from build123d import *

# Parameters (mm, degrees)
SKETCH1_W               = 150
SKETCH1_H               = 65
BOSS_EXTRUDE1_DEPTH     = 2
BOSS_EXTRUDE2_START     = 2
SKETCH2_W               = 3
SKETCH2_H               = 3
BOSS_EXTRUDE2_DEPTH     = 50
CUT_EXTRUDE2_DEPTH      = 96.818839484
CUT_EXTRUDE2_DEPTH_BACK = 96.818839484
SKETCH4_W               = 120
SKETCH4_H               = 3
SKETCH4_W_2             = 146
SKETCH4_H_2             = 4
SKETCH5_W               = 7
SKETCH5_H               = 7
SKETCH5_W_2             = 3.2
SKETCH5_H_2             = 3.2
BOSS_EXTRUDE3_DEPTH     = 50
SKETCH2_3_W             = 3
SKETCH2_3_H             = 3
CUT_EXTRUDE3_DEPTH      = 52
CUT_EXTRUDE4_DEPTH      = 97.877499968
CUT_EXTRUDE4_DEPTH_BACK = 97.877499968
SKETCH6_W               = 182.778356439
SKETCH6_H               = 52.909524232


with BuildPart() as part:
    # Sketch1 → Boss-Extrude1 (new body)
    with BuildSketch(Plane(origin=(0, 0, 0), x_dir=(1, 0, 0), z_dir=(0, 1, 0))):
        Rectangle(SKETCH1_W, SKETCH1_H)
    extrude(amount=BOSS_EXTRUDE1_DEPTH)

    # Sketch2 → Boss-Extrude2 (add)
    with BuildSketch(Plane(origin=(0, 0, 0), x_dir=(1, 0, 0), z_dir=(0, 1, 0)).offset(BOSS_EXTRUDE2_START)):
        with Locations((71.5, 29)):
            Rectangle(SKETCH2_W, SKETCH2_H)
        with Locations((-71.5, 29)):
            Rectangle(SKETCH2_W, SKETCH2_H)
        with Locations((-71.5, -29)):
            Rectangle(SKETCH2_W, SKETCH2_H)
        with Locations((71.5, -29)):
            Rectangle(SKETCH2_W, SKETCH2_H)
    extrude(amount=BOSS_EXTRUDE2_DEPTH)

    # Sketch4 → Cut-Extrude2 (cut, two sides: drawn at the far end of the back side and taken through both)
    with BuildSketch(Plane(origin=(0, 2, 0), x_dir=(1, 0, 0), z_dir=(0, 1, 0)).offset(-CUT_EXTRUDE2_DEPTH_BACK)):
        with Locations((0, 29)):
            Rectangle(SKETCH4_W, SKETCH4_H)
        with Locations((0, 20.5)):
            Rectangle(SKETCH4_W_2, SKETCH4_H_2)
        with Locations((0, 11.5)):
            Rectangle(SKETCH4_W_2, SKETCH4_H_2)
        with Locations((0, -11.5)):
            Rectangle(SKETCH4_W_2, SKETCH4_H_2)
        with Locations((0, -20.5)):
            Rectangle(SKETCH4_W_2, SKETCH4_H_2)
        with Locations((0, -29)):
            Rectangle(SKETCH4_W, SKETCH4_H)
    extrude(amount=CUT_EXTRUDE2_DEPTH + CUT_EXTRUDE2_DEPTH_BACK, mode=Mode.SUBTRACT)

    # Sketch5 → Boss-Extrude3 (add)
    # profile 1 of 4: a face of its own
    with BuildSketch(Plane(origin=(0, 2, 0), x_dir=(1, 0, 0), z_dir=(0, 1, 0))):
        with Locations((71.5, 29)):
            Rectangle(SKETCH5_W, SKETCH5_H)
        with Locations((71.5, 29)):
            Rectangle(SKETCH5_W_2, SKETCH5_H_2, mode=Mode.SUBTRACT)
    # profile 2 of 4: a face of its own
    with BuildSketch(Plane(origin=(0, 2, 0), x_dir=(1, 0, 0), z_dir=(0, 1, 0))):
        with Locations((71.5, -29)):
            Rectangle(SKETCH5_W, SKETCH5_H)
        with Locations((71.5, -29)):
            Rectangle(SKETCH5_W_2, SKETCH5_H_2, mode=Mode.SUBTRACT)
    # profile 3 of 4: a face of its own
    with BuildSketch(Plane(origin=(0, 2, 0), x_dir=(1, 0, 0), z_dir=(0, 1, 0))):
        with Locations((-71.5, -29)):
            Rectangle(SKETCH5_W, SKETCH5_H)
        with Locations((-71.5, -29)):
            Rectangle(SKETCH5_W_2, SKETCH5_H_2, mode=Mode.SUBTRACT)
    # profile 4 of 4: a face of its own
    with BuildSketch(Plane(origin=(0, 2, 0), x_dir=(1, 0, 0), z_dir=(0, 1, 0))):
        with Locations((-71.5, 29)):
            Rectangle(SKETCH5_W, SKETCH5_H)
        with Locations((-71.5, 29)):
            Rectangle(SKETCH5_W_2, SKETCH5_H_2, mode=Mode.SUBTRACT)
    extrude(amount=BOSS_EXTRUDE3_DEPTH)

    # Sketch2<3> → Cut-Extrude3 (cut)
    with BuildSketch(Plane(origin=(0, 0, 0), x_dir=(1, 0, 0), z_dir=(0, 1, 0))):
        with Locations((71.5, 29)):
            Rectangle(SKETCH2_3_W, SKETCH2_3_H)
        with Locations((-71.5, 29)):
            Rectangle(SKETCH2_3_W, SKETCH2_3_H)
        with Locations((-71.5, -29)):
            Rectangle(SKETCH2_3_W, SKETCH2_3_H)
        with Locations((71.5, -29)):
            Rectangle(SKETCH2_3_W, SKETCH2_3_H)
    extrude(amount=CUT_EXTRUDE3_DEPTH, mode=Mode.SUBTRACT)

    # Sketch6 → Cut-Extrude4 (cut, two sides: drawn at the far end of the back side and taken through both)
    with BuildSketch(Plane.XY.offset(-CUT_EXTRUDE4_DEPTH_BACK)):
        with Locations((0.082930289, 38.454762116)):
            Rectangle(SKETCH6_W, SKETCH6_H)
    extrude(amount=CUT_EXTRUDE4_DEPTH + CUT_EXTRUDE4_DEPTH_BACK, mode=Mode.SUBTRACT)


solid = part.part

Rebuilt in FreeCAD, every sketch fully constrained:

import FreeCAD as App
import Part
import Sketcher
from FreeCAD import Vector

doc = App.newDocument("Part")
body = doc.addObject("PartDesign::Body", "Body")

# Sketch on XZ plane
sketch1 = doc.addObject("Sketcher::SketchObject", "Sketch")
body.addObject(sketch1)
sketch1.AttachmentSupport = (doc.XZ_Plane, [""])
sketch1.MapMode = "FlatFace"
sketch1.addGeometry(Part.LineSegment(Vector(-75, -32, 0), Vector(-75, 32, 0)), False)
sketch1.addGeometry(Part.LineSegment(Vector(-75, 32, 0), Vector(75, 32, 0)), False)
sketch1.addGeometry(Part.LineSegment(Vector(75, 32, 0), Vector(75, -32, 0)), False)
sketch1.addGeometry(Part.LineSegment(Vector(75, -32, 0), Vector(-75, -32, 0)), False)
sketch1.addConstraint(Sketcher.Constraint("Coincident", 0, 2, 1, 1))
sketch1.addConstraint(Sketcher.Constraint("Coincident", 1, 2, 2, 1))
sketch1.addConstraint(Sketcher.Constraint("Coincident", 2, 2, 3, 1))
sketch1.addConstraint(Sketcher.Constraint("Coincident", 3, 2, 0, 1))
sketch1.addConstraint(Sketcher.Constraint("Vertical", 0))
sketch1.addConstraint(Sketcher.Constraint("Horizontal", 1))
sketch1.addConstraint(Sketcher.Constraint("Vertical", 2))
sketch1.addConstraint(Sketcher.Constraint("Horizontal", 3))
sketch1.addConstraint(Sketcher.Constraint("Symmetric", 0, 2, 2, 2, -1, 1))
sketch1.addConstraint(Sketcher.Constraint("DistanceX", 1, 1, 1, 2, 150.0))
sketch1.addConstraint(Sketcher.Constraint("DistanceY", 0, 1, 0, 2, 65.0))
pad1 = doc.addObject("PartDesign::Pad", "Pad")
body.addObject(pad1)
pad1.Profile = sketch1
pad1.Length = 2
pad1.Reversed = True

# Sketch on XZ plane
sketch2 = doc.addObject("Sketcher::SketchObject", "Sketch001")
body.addObject(sketch2)
sketch2.AttachmentSupport = (doc.XZ_Plane, [""])
sketch2.MapMode = "FlatFace"
sketch2.AttachmentOffset = App.Placement(Vector(0, 0, -2), App.Rotation())
sketch2.addGeometry(Part.LineSegment(Vector(70, -30.5, 0), Vector(70, -27.5, 0)), False)
sketch2.addGeometry(Part.LineSegment(Vector(70, -27.5, 0), Vector(73, -27.5, 0)), False)
sketch2.addGeometry(Part.LineSegment(Vector(73, -27.5, 0), Vector(73, -30.5, 0)), False)
sketch2.addGeometry(Part.LineSegment(Vector(73, -30.5, 0), Vector(70, -30.5, 0)), False)
sketch2.addGeometry(Part.LineSegment(Vector(-73, -30.5, 0), Vector(-73, -27.5, 0)), False)
sketch2.addGeometry(Part.LineSegment(Vector(-73, -27.5, 0), Vector(-70, -27.5, 0)), False)
sketch2.addGeometry(Part.LineSegment(Vector(-70, -27.5, 0), Vector(-70, -30.5, 0)), False)
sketch2.addGeometry(Part.LineSegment(Vector(-70, -30.5, 0), Vector(-73, -30.5, 0)), False)
sketch2.addGeometry(Part.LineSegment(Vector(-73, 27.5, 0), Vector(-73, 30.5, 0)), False)
sketch2.addGeometry(Part.LineSegment(Vector(-73, 30.5, 0), Vector(-70, 30.5, 0)), False)
sketch2.addGeometry(Part.LineSegment(Vector(-70, 30.5, 0), Vector(-70, 27.5, 0)), False)
sketch2.addGeometry(Part.LineSegment(Vector(-70, 27.5, 0), Vector(-73, 27.5, 0)), False)
sketch2.addGeometry(Part.LineSegment(Vector(70, 27.5, 0), Vector(70, 30.5, 0)), False)
sketch2.addGeometry(Part.LineSegment(Vector(70, 30.5, 0), Vector(73, 30.5, 0)), False)
sketch2.addGeometry(Part.LineSegment(Vector(73, 30.5, 0), Vector(73, 27.5, 0)), False)
sketch2.addGeometry(Part.LineSegment(Vector(73, 27.5, 0), Vector(70, 27.5, 0)), False)
sketch2.addConstraint(Sketcher.Constraint("Coincident", 0, 2, 1, 1))
sketch2.addConstraint(Sketcher.Constraint("Coincident", 1, 2, 2, 1))
sketch2.addConstraint(Sketcher.Constraint("Coincident", 2, 2, 3, 1))
sketch2.addConstraint(Sketcher.Constraint("Coincident", 3, 2, 0, 1))
sketch2.addConstraint(Sketcher.Constraint("Coincident", 4, 2, 5, 1))
sketch2.addConstraint(Sketcher.Constraint("Coincident", 5, 2, 6, 1))
sketch2.addConstraint(Sketcher.Constraint("Coincident", 6, 2, 7, 1))
sketch2.addConstraint(Sketcher.Constraint("Coincident", 7, 2, 4, 1))
sketch2.addConstraint(Sketcher.Constraint("Coincident", 8, 2, 9, 1))
sketch2.addConstraint(Sketcher.Constraint("Coincident", 9, 2, 10, 1))
sketch2.addConstraint(Sketcher.Constraint("Coincident", 10, 2, 11, 1))
sketch2.addConstraint(Sketcher.Constraint("Coincident", 11, 2, 8, 1))
sketch2.addConstraint(Sketcher.Constraint("Coincident", 12, 2, 13, 1))
sketch2.addConstraint(Sketcher.Constraint("Coincident", 13, 2, 14, 1))
sketch2.addConstraint(Sketcher.Constraint("Coincident", 14, 2, 15, 1))
sketch2.addConstraint(Sketcher.Constraint("Coincident", 15, 2, 12, 1))
sketch2.addConstraint(Sketcher.Constraint("Vertical", 0))
sketch2.addConstraint(Sketcher.Constraint("Horizontal", 1))
sketch2.addConstraint(Sketcher.Constraint("Vertical", 2))
sketch2.addConstraint(Sketcher.Constraint("Horizontal", 3))
sketch2.addConstraint(Sketcher.Constraint("Vertical", 4))
sketch2.addConstraint(Sketcher.Constraint("Horizontal", 5))
sketch2.addConstraint(Sketcher.Constraint("Vertical", 6))
sketch2.addConstraint(Sketcher.Constraint("Horizontal", 7))
sketch2.addConstraint(Sketcher.Constraint("Vertical", 8))
sketch2.addConstraint(Sketcher.Constraint("Horizontal", 9))
sketch2.addConstraint(Sketcher.Constraint("Vertical", 10))
sketch2.addConstraint(Sketcher.Constraint("Horizontal", 11))
sketch2.addConstraint(Sketcher.Constraint("Vertical", 12))
sketch2.addConstraint(Sketcher.Constraint("Horizontal", 13))
sketch2.addConstraint(Sketcher.Constraint("Vertical", 14))
sketch2.addConstraint(Sketcher.Constraint("Horizontal", 15))
sketch2.addConstraint(Sketcher.Constraint("Symmetric", 2, 2, 8, 2, -1, 1))
sketch2.addConstraint(Sketcher.Constraint("Symmetric", 0, 2, 10, 2, -1, 1))
sketch2.addConstraint(Sketcher.Constraint("Symmetric", 6, 2, 12, 2, -1, 1))
sketch2.addConstraint(Sketcher.Constraint("Symmetric", 4, 2, 14, 2, -1, 1))
sketch2.addConstraint(Sketcher.Constraint("Symmetric", 1, 2, 4, 2, -2))
sketch2.addConstraint(Sketcher.Constraint("Symmetric", 3, 2, 6, 2, -2))
sketch2.addConstraint(Sketcher.Constraint("Equal", 15, 0))
sketch2.addConstraint(Sketcher.Constraint("DistanceX", 1, 1, 1, 2, 3.0))
sketch2.addConstraint(Sketcher.Constraint("DistanceX", -1, 1, 0, 2, 70.0))
sketch2.addConstraint(Sketcher.Constraint("DistanceY", 4, 2, 8, 2, 58.0))
pad2 = doc.addObject("PartDesign::Pad", "Pad001")
body.addObject(pad2)
pad2.Profile = sketch2
pad2.Length = 50
pad2.Reversed = True

# Sketch on XZ plane
sketch3 = doc.addObject("Sketcher::SketchObject", "Sketch002")
body.addObject(sketch3)
sketch3.AttachmentSupport = (doc.XZ_Plane, [""])
sketch3.MapMode = "FlatFace"
sketch3.AttachmentOffset = App.Placement(Vector(0, 0, -2), App.Rotation())
sketch3.addGeometry(Part.LineSegment(Vector(-60, -30.5, 0), Vector(-60, -27.5, 0)), False)
sketch3.addGeometry(Part.LineSegment(Vector(-60, -27.5, 0), Vector(60, -27.5, 0)), False)
sketch3.addGeometry(Part.LineSegment(Vector(60, -27.5, 0), Vector(60, -30.5, 0)), False)
sketch3.addGeometry(Part.LineSegment(Vector(60, -30.5, 0), Vector(-60, -30.5, 0)), False)
sketch3.addGeometry(Part.LineSegment(Vector(-73, -22.5, 0), Vector(-73, -18.5, 0)), False)
sketch3.addGeometry(Part.LineSegment(Vector(-73, -18.5, 0), Vector(73, -18.5, 0)), False)
sketch3.addGeometry(Part.LineSegment(Vector(73, -18.5, 0), Vector(73, -22.5, 0)), False)
sketch3.addGeometry(Part.LineSegment(Vector(73, -22.5, 0), Vector(-73, -22.5, 0)), False)
sketch3.addGeometry(Part.LineSegment(Vector(-73, -13.5, 0), Vector(-73, -9.5, 0)), False)
sketch3.addGeometry(Part.LineSegment(Vector(-73, -9.5, 0), Vector(73, -9.5, 0)), False)
sketch3.addGeometry(Part.LineSegment(Vector(73, -9.5, 0), Vector(73, -13.5, 0)), False)
sketch3.addGeometry(Part.LineSegment(Vector(73, -13.5, 0), Vector(-73, -13.5, 0)), False)
sketch3.addGeometry(Part.LineSegment(Vector(-73, 9.5, 0), Vector(-73, 13.5, 0)), False)
sketch3.addGeometry(Part.LineSegment(Vector(-73, 13.5, 0), Vector(73, 13.5, 0)), False)
sketch3.addGeometry(Part.LineSegment(Vector(73, 13.5, 0), Vector(73, 9.5, 0)), False)
sketch3.addGeometry(Part.LineSegment(Vector(73, 9.5, 0), Vector(-73, 9.5, 0)), False)
sketch3.addGeometry(Part.LineSegment(Vector(-73, 18.5, 0), Vector(-73, 22.5, 0)), False)
sketch3.addGeometry(Part.LineSegment(Vector(-73, 22.5, 0), Vector(73, 22.5, 0)), False)
sketch3.addGeometry(Part.LineSegment(Vector(73, 22.5, 0), Vector(73, 18.5, 0)), False)
sketch3.addGeometry(Part.LineSegment(Vector(73, 18.5, 0), Vector(-73, 18.5, 0)), False)
sketch3.addGeometry(Part.LineSegment(Vector(-60, 27.5, 0), Vector(-60, 30.5, 0)), False)
sketch3.addGeometry(Part.LineSegment(Vector(-60, 30.5, 0), Vector(60, 30.5, 0)), False)
sketch3.addGeometry(Part.LineSegment(Vector(60, 30.5, 0), Vector(60, 27.5, 0)), False)
sketch3.addGeometry(Part.LineSegment(Vector(60, 27.5, 0), Vector(-60, 27.5, 0)), False)
sketch3.addConstraint(Sketcher.Constraint("Coincident", 0, 2, 1, 1))
sketch3.addConstraint(Sketcher.Constraint("Coincident", 1, 2, 2, 1))
sketch3.addConstraint(Sketcher.Constraint("Coincident", 2, 2, 3, 1))
sketch3.addConstraint(Sketcher.Constraint("Coincident", 3, 2, 0, 1))
sketch3.addConstraint(Sketcher.Constraint("Coincident", 4, 2, 5, 1))
sketch3.addConstraint(Sketcher.Constraint("Coincident", 5, 2, 6, 1))
sketch3.addConstraint(Sketcher.Constraint("Coincident", 6, 2, 7, 1))
sketch3.addConstraint(Sketcher.Constraint("Coincident", 7, 2, 4, 1))
sketch3.addConstraint(Sketcher.Constraint("Coincident", 8, 2, 9, 1))
sketch3.addConstraint(Sketcher.Constraint("Coincident", 9, 2, 10, 1))
sketch3.addConstraint(Sketcher.Constraint("Coincident", 10, 2, 11, 1))
sketch3.addConstraint(Sketcher.Constraint("Coincident", 11, 2, 8, 1))
sketch3.addConstraint(Sketcher.Constraint("Coincident", 12, 2, 13, 1))
sketch3.addConstraint(Sketcher.Constraint("Coincident", 13, 2, 14, 1))
sketch3.addConstraint(Sketcher.Constraint("Coincident", 14, 2, 15, 1))
sketch3.addConstraint(Sketcher.Constraint("Coincident", 15, 2, 12, 1))
sketch3.addConstraint(Sketcher.Constraint("Coincident", 16, 2, 17, 1))
sketch3.addConstraint(Sketcher.Constraint("Coincident", 17, 2, 18, 1))
sketch3.addConstraint(Sketcher.Constraint("Coincident", 18, 2, 19, 1))
sketch3.addConstraint(Sketcher.Constraint("Coincident", 19, 2, 16, 1))
sketch3.addConstraint(Sketcher.Constraint("Coincident", 20, 2, 21, 1))
sketch3.addConstraint(Sketcher.Constraint("Coincident", 21, 2, 22, 1))
sketch3.addConstraint(Sketcher.Constraint("Coincident", 22, 2, 23, 1))
sketch3.addConstraint(Sketcher.Constraint("Coincident", 23, 2, 20, 1))
sketch3.addConstraint(Sketcher.Constraint("Vertical", 0))
sketch3.addConstraint(Sketcher.Constraint("Horizontal", 1))
sketch3.addConstraint(Sketcher.Constraint("Vertical", 2))
sketch3.addConstraint(Sketcher.Constraint("Horizontal", 3))
sketch3.addConstraint(Sketcher.Constraint("Vertical", 4))
sketch3.addConstraint(Sketcher.Constraint("Horizontal", 5))
sketch3.addConstraint(Sketcher.Constraint("Vertical", 6))
sketch3.addConstraint(Sketcher.Constraint("Horizontal", 7))
sketch3.addConstraint(Sketcher.Constraint("Vertical", 8))
sketch3.addConstraint(Sketcher.Constraint("Horizontal", 9))
sketch3.addConstraint(Sketcher.Constraint("Vertical", 10))
sketch3.addConstraint(Sketcher.Constraint("Horizontal", 11))
sketch3.addConstraint(Sketcher.Constraint("Vertical", 12))
sketch3.addConstraint(Sketcher.Constraint("Horizontal", 13))
sketch3.addConstraint(Sketcher.Constraint("Vertical", 14))
sketch3.addConstraint(Sketcher.Constraint("Horizontal", 15))
sketch3.addConstraint(Sketcher.Constraint("Vertical", 16))
sketch3.addConstraint(Sketcher.Constraint("Horizontal", 17))
sketch3.addConstraint(Sketcher.Constraint("Vertical", 18))
sketch3.addConstraint(Sketcher.Constraint("Horizontal", 19))
sketch3.addConstraint(Sketcher.Constraint("Vertical", 20))
sketch3.addConstraint(Sketcher.Constraint("Horizontal", 21))
sketch3.addConstraint(Sketcher.Constraint("Vertical", 22))
sketch3.addConstraint(Sketcher.Constraint("Horizontal", 23))
sketch3.addConstraint(Sketcher.Constraint("Symmetric", 10, 2, 12, 2, -1, 1))
sketch3.addConstraint(Sketcher.Constraint("Symmetric", 8, 2, 14, 2, -1, 1))
sketch3.addConstraint(Sketcher.Constraint("Symmetric", 6, 2, 16, 2, -1, 1))
sketch3.addConstraint(Sketcher.Constraint("Symmetric", 4, 2, 18, 2, -1, 1))
sketch3.addConstraint(Sketcher.Constraint("Symmetric", 2, 2, 20, 2, -1, 1))
sketch3.addConstraint(Sketcher.Constraint("Symmetric", 0, 2, 22, 2, -1, 1))
sketch3.addConstraint(Sketcher.Constraint("Vertical", 7, 2, 8, 2))
sketch3.addConstraint(Sketcher.Constraint("Vertical", 6, 2, 9, 2))
sketch3.addConstraint(Sketcher.Constraint("Vertical", 11, 2, 12, 2))
sketch3.addConstraint(Sketcher.Constraint("Vertical", 3, 2, 20, 2))
sketch3.addConstraint(Sketcher.Constraint("Equal", 6, 8))
sketch3.addConstraint(Sketcher.Constraint("DistanceX", 1, 1, 1, 2, 120.0))
sketch3.addConstraint(Sketcher.Constraint("DistanceX", 5, 1, 5, 2, 146.0))
sketch3.addConstraint(Sketcher.Constraint("DistanceY", 0, 1, 0, 2, 3.0))
sketch3.addConstraint(Sketcher.Constraint("DistanceY", 4, 1, 4, 2, 4.0))
sketch3.addConstraint(Sketcher.Constraint("DistanceY", 0, 2, 4, 2, 9.0))
sketch3.addConstraint(Sketcher.Constraint("DistanceY", 4, 2, 8, 2, 9.0))
sketch3.addConstraint(Sketcher.Constraint("DistanceY", 8, 2, 12, 2, 23.0))
pocket1 = doc.addObject("PartDesign::Pocket", "Pocket")
body.addObject(pocket1)
pocket1.Profile = sketch3
pocket1.Type = "ThroughAll"
pocket1.Midplane = True

# Sketch on XZ plane
sketch4 = doc.addObject("Sketcher::SketchObject", "Sketch003")
body.addObject(sketch4)
sketch4.AttachmentSupport = (doc.XZ_Plane, [""])
sketch4.MapMode = "FlatFace"
sketch4.AttachmentOffset = App.Placement(Vector(0, 0, -2), App.Rotation())
sketch4.addGeometry(Part.LineSegment(Vector(68, -32.5, 0), Vector(68, -25.5, 0)), False)
sketch4.addGeometry(Part.LineSegment(Vector(68, -25.5, 0), Vector(75, -25.5, 0)), False)
sketch4.addGeometry(Part.LineSegment(Vector(75, -25.5, 0), Vector(75, -32.5, 0)), False)
sketch4.addGeometry(Part.LineSegment(Vector(75, -32.5, 0), Vector(68, -32.5, 0)), False)
sketch4.addGeometry(Part.LineSegment(Vector(73.1, -27.4, 0), Vector(69.9, -27.4, 0)), False)
sketch4.addGeometry(Part.LineSegment(Vector(69.9, -27.4, 0), Vector(69.9, -30.6, 0)), False)
sketch4.addGeometry(Part.LineSegment(Vector(69.9, -30.6, 0), Vector(73.1, -30.6, 0)), False)
sketch4.addGeometry(Part.LineSegment(Vector(73.1, -30.6, 0), Vector(73.1, -27.4, 0)), False)
sketch4.addGeometry(Part.LineSegment(Vector(68, 25.5, 0), Vector(68, 32.5, 0)), False)
sketch4.addGeometry(Part.LineSegment(Vector(68, 32.5, 0), Vector(75, 32.5, 0)), False)
sketch4.addGeometry(Part.LineSegment(Vector(75, 32.5, 0), Vector(75, 25.5, 0)), False)
sketch4.addGeometry(Part.LineSegment(Vector(75, 25.5, 0), Vector(68, 25.5, 0)), False)
sketch4.addGeometry(Part.LineSegment(Vector(73.1, 30.6, 0), Vector(69.9, 30.6, 0)), False)
sketch4.addGeometry(Part.LineSegment(Vector(69.9, 30.6, 0), Vector(69.9, 27.4, 0)), False)
sketch4.addGeometry(Part.LineSegment(Vector(69.9, 27.4, 0), Vector(73.1, 27.4, 0)), False)
sketch4.addGeometry(Part.LineSegment(Vector(73.1, 27.4, 0), Vector(73.1, 30.6, 0)), False)
sketch4.addGeometry(Part.LineSegment(Vector(-75, 25.5, 0), Vector(-75, 32.5, 0)), False)
sketch4.addGeometry(Part.LineSegment(Vector(-75, 32.5, 0), Vector(-68, 32.5, 0)), False)
sketch4.addGeometry(Part.LineSegment(Vector(-68, 32.5, 0), Vector(-68, 25.5, 0)), False)
sketch4.addGeometry(Part.LineSegment(Vector(-68, 25.5, 0), Vector(-75, 25.5, 0)), False)
sketch4.addGeometry(Part.LineSegment(Vector(-69.9, 30.6, 0), Vector(-73.1, 30.6, 0)), False)
sketch4.addGeometry(Part.LineSegment(Vector(-73.1, 30.6, 0), Vector(-73.1, 27.4, 0)), False)
sketch4.addGeometry(Part.LineSegment(Vector(-73.1, 27.4, 0), Vector(-69.9, 27.4, 0)), False)
sketch4.addGeometry(Part.LineSegment(Vector(-69.9, 27.4, 0), Vector(-69.9, 30.6, 0)), False)
sketch4.addGeometry(Part.LineSegment(Vector(-75, -32.5, 0), Vector(-75, -25.5, 0)), False)
sketch4.addGeometry(Part.LineSegment(Vector(-75, -25.5, 0), Vector(-68, -25.5, 0)), False)
sketch4.addGeometry(Part.LineSegment(Vector(-68, -25.5, 0), Vector(-68, -32.5, 0)), False)
sketch4.addGeometry(Part.LineSegment(Vector(-68, -32.5, 0), Vector(-75, -32.5, 0)), False)
sketch4.addGeometry(Part.LineSegment(Vector(-69.9, -27.4, 0), Vector(-73.1, -27.4, 0)), False)
sketch4.addGeometry(Part.LineSegment(Vector(-73.1, -27.4, 0), Vector(-73.1, -30.6, 0)), False)
sketch4.addGeometry(Part.LineSegment(Vector(-73.1, -30.6, 0), Vector(-69.9, -30.6, 0)), False)
sketch4.addGeometry(Part.LineSegment(Vector(-69.9, -30.6, 0), Vector(-69.9, -27.4, 0)), False)
sketch4.addConstraint(Sketcher.Constraint("Coincident", 0, 2, 1, 1))
sketch4.addConstraint(Sketcher.Constraint("Coincident", 1, 2, 2, 1))
sketch4.addConstraint(Sketcher.Constraint("Coincident", 2, 2, 3, 1))
sketch4.addConstraint(Sketcher.Constraint("Coincident", 3, 2, 0, 1))
sketch4.addConstraint(Sketcher.Constraint("Coincident", 4, 2, 5, 1))
sketch4.addConstraint(Sketcher.Constraint("Coincident", 5, 2, 6, 1))
sketch4.addConstraint(Sketcher.Constraint("Coincident", 6, 2, 7, 1))
sketch4.addConstraint(Sketcher.Constraint("Coincident", 7, 2, 4, 1))
sketch4.addConstraint(Sketcher.Constraint("Coincident", 8, 2, 9, 1))
sketch4.addConstraint(Sketcher.Constraint("Coincident", 9, 2, 10, 1))
sketch4.addConstraint(Sketcher.Constraint("Coincident", 10, 2, 11, 1))
sketch4.addConstraint(Sketcher.Constraint("Coincident", 11, 2, 8, 1))
sketch4.addConstraint(Sketcher.Constraint("Coincident", 12, 2, 13, 1))
sketch4.addConstraint(Sketcher.Constraint("Coincident", 13, 2, 14, 1))
sketch4.addConstraint(Sketcher.Constraint("Coincident", 14, 2, 15, 1))
sketch4.addConstraint(Sketcher.Constraint("Coincident", 15, 2, 12, 1))
sketch4.addConstraint(Sketcher.Constraint("Coincident", 16, 2, 17, 1))
sketch4.addConstraint(Sketcher.Constraint("Coincident", 17, 2, 18, 1))
sketch4.addConstraint(Sketcher.Constraint("Coincident", 18, 2, 19, 1))
sketch4.addConstraint(Sketcher.Constraint("Coincident", 19, 2, 16, 1))
sketch4.addConstraint(Sketcher.Constraint("Coincident", 20, 2, 21, 1))
sketch4.addConstraint(Sketcher.Constraint("Coincident", 21, 2, 22, 1))
sketch4.addConstraint(Sketcher.Constraint("Coincident", 22, 2, 23, 1))
sketch4.addConstraint(Sketcher.Constraint("Coincident", 23, 2, 20, 1))
sketch4.addConstraint(Sketcher.Constraint("Coincident", 24, 2, 25, 1))
sketch4.addConstraint(Sketcher.Constraint("Coincident", 25, 2, 26, 1))
sketch4.addConstraint(Sketcher.Constraint("Coincident", 26, 2, 27, 1))
sketch4.addConstraint(Sketcher.Constraint("Coincident", 27, 2, 24, 1))
sketch4.addConstraint(Sketcher.Constraint("Coincident", 28, 2, 29, 1))
sketch4.addConstraint(Sketcher.Constraint("Coincident", 29, 2, 30, 1))
sketch4.addConstraint(Sketcher.Constraint("Coincident", 30, 2, 31, 1))
sketch4.addConstraint(Sketcher.Constraint("Coincident", 31, 2, 28, 1))
sketch4.addConstraint(Sketcher.Constraint("Vertical", 0))
sketch4.addConstraint(Sketcher.Constraint("Horizontal", 1))
sketch4.addConstraint(Sketcher.Constraint("Vertical", 2))
sketch4.addConstraint(Sketcher.Constraint("Horizontal", 3))
sketch4.addConstraint(Sketcher.Constraint("Horizontal", 4))
sketch4.addConstraint(Sketcher.Constraint("Vertical", 5))
sketch4.addConstraint(Sketcher.Constraint("Horizontal", 6))
sketch4.addConstraint(Sketcher.Constraint("Vertical", 7))
sketch4.addConstraint(Sketcher.Constraint("Vertical", 8))
sketch4.addConstraint(Sketcher.Constraint("Horizontal", 9))
sketch4.addConstraint(Sketcher.Constraint("Vertical", 10))
sketch4.addConstraint(Sketcher.Constraint("Horizontal", 11))
sketch4.addConstraint(Sketcher.Constraint("Horizontal", 12))
sketch4.addConstraint(Sketcher.Constraint("Vertical", 13))
sketch4.addConstraint(Sketcher.Constraint("Horizontal", 14))
sketch4.addConstraint(Sketcher.Constraint("Vertical", 15))
sketch4.addConstraint(Sketcher.Constraint("Vertical", 16))
sketch4.addConstraint(Sketcher.Constraint("Horizontal", 17))
sketch4.addConstraint(Sketcher.Constraint("Vertical", 18))
sketch4.addConstraint(Sketcher.Constraint("Horizontal", 19))
sketch4.addConstraint(Sketcher.Constraint("Horizontal", 20))
sketch4.addConstraint(Sketcher.Constraint("Vertical", 21))
sketch4.addConstraint(Sketcher.Constraint("Horizontal", 22))
sketch4.addConstraint(Sketcher.Constraint("Vertical", 23))
sketch4.addConstraint(Sketcher.Constraint("Vertical", 24))
sketch4.addConstraint(Sketcher.Constraint("Horizontal", 25))
sketch4.addConstraint(Sketcher.Constraint("Vertical", 26))
sketch4.addConstraint(Sketcher.Constraint("Horizontal", 27))
sketch4.addConstraint(Sketcher.Constraint("Horizontal", 28))
sketch4.addConstraint(Sketcher.Constraint("Vertical", 29))
sketch4.addConstraint(Sketcher.Constraint("Horizontal", 30))
sketch4.addConstraint(Sketcher.Constraint("Vertical", 31))
sketch4.addConstraint(Sketcher.Constraint("Symmetric", 2, 2, 16, 2, -1, 1))
sketch4.addConstraint(Sketcher.Constraint("Symmetric", 0, 2, 18, 2, -1, 1))
sketch4.addConstraint(Sketcher.Constraint("Symmetric", 6, 2, 20, 2, -1, 1))
sketch4.addConstraint(Sketcher.Constraint("Symmetric", 4, 2, 22, 2, -1, 1))
sketch4.addConstraint(Sketcher.Constraint("Symmetric", 10, 2, 24, 2, -1, 1))
sketch4.addConstraint(Sketcher.Constraint("Symmetric", 8, 2, 26, 2, -1, 1))
sketch4.addConstraint(Sketcher.Constraint("Symmetric", 14, 2, 28, 2, -1, 1))
sketch4.addConstraint(Sketcher.Constraint("Symmetric", 12, 2, 30, 2, -1, 1))
sketch4.addConstraint(Sketcher.Constraint("Symmetric", 9, 2, 16, 2, -2))
sketch4.addConstraint(Sketcher.Constraint("Symmetric", 11, 2, 18, 2, -2))
sketch4.addConstraint(Sketcher.Constraint("Symmetric", 15, 2, 20, 2, -2))
sketch4.addConstraint(Sketcher.Constraint("Symmetric", 13, 2, 22, 2, -2))
sketch4.addConstraint(Sketcher.Constraint("Equal", 27, 0))
sketch4.addConstraint(Sketcher.Constraint("Equal", 30, 5))
sketch4.addConstraint(Sketcher.Constraint("DistanceX", 1, 1, 1, 2, 7.0))
sketch4.addConstraint(Sketcher.Constraint("DistanceX", 4, 2, 4, 1, 3.2))
sketch4.addConstraint(Sketcher.Constraint("DistanceX", -1, 1, 0, 2, 68.0))
sketch4.addConstraint(Sketcher.Constraint("DistanceY", 0, 2, 8, 2, 58.0))
sketch4.addConstraint(Sketcher.Constraint("DistanceX", -1, 1, 4, 2, 69.9))
sketch4.addConstraint(Sketcher.Constraint("DistanceY", 4, 2, -1, 1, 27.4))
pad3 = doc.addObject("PartDesign::Pad", "Pad002")
body.addObject(pad3)
pad3.Profile = sketch4
pad3.Length = 50
pad3.Reversed = True

# Sketch on XZ plane
sketch5 = doc.addObject("Sketcher::SketchObject", "Sketch004")
body.addObject(sketch5)
sketch5.AttachmentSupport = (doc.XZ_Plane, [""])
sketch5.MapMode = "FlatFace"
sketch5.addGeometry(Part.LineSegment(Vector(70, -30.5, 0), Vector(70, -27.5, 0)), False)
sketch5.addGeometry(Part.LineSegment(Vector(70, -27.5, 0), Vector(73, -27.5, 0)), False)
sketch5.addGeometry(Part.LineSegment(Vector(73, -27.5, 0), Vector(73, -30.5, 0)), False)
sketch5.addGeometry(Part.LineSegment(Vector(73, -30.5, 0), Vector(70, -30.5, 0)), False)
sketch5.addGeometry(Part.LineSegment(Vector(-73, -30.5, 0), Vector(-73, -27.5, 0)), False)
sketch5.addGeometry(Part.LineSegment(Vector(-73, -27.5, 0), Vector(-70, -27.5, 0)), False)
sketch5.addGeometry(Part.LineSegment(Vector(-70, -27.5, 0), Vector(-70, -30.5, 0)), False)
sketch5.addGeometry(Part.LineSegment(Vector(-70, -30.5, 0), Vector(-73, -30.5, 0)), False)
sketch5.addGeometry(Part.LineSegment(Vector(-73, 27.5, 0), Vector(-73, 30.5, 0)), False)
sketch5.addGeometry(Part.LineSegment(Vector(-73, 30.5, 0), Vector(-70, 30.5, 0)), False)
sketch5.addGeometry(Part.LineSegment(Vector(-70, 30.5, 0), Vector(-70, 27.5, 0)), False)
sketch5.addGeometry(Part.LineSegment(Vector(-70, 27.5, 0), Vector(-73, 27.5, 0)), False)
sketch5.addGeometry(Part.LineSegment(Vector(70, 27.5, 0), Vector(70, 30.5, 0)), False)
sketch5.addGeometry(Part.LineSegment(Vector(70, 30.5, 0), Vector(73, 30.5, 0)), False)
sketch5.addGeometry(Part.LineSegment(Vector(73, 30.5, 0), Vector(73, 27.5, 0)), False)
sketch5.addGeometry(Part.LineSegment(Vector(73, 27.5, 0), Vector(70, 27.5, 0)), False)
sketch5.addConstraint(Sketcher.Constraint("Coincident", 0, 2, 1, 1))
sketch5.addConstraint(Sketcher.Constraint("Coincident", 1, 2, 2, 1))
sketch5.addConstraint(Sketcher.Constraint("Coincident", 2, 2, 3, 1))
sketch5.addConstraint(Sketcher.Constraint("Coincident", 3, 2, 0, 1))
sketch5.addConstraint(Sketcher.Constraint("Coincident", 4, 2, 5, 1))
sketch5.addConstraint(Sketcher.Constraint("Coincident", 5, 2, 6, 1))
sketch5.addConstraint(Sketcher.Constraint("Coincident", 6, 2, 7, 1))
sketch5.addConstraint(Sketcher.Constraint("Coincident", 7, 2, 4, 1))
sketch5.addConstraint(Sketcher.Constraint("Coincident", 8, 2, 9, 1))
sketch5.addConstraint(Sketcher.Constraint("Coincident", 9, 2, 10, 1))
sketch5.addConstraint(Sketcher.Constraint("Coincident", 10, 2, 11, 1))
sketch5.addConstraint(Sketcher.Constraint("Coincident", 11, 2, 8, 1))
sketch5.addConstraint(Sketcher.Constraint("Coincident", 12, 2, 13, 1))
sketch5.addConstraint(Sketcher.Constraint("Coincident", 13, 2, 14, 1))
sketch5.addConstraint(Sketcher.Constraint("Coincident", 14, 2, 15, 1))
sketch5.addConstraint(Sketcher.Constraint("Coincident", 15, 2, 12, 1))
sketch5.addConstraint(Sketcher.Constraint("Vertical", 0))
sketch5.addConstraint(Sketcher.Constraint("Horizontal", 1))
sketch5.addConstraint(Sketcher.Constraint("Vertical", 2))
sketch5.addConstraint(Sketcher.Constraint("Horizontal", 3))
sketch5.addConstraint(Sketcher.Constraint("Vertical", 4))
sketch5.addConstraint(Sketcher.Constraint("Horizontal", 5))
sketch5.addConstraint(Sketcher.Constraint("Vertical", 6))
sketch5.addConstraint(Sketcher.Constraint("Horizontal", 7))
sketch5.addConstraint(Sketcher.Constraint("Vertical", 8))
sketch5.addConstraint(Sketcher.Constraint("Horizontal", 9))
sketch5.addConstraint(Sketcher.Constraint("Vertical", 10))
sketch5.addConstraint(Sketcher.Constraint("Horizontal", 11))
sketch5.addConstraint(Sketcher.Constraint("Vertical", 12))
sketch5.addConstraint(Sketcher.Constraint("Horizontal", 13))
sketch5.addConstraint(Sketcher.Constraint("Vertical", 14))
sketch5.addConstraint(Sketcher.Constraint("Horizontal", 15))
sketch5.addConstraint(Sketcher.Constraint("Symmetric", 2, 2, 8, 2, -1, 1))
sketch5.addConstraint(Sketcher.Constraint("Symmetric", 0, 2, 10, 2, -1, 1))
sketch5.addConstraint(Sketcher.Constraint("Symmetric", 6, 2, 12, 2, -1, 1))
sketch5.addConstraint(Sketcher.Constraint("Symmetric", 4, 2, 14, 2, -1, 1))
sketch5.addConstraint(Sketcher.Constraint("Symmetric", 1, 2, 4, 2, -2))
sketch5.addConstraint(Sketcher.Constraint("Symmetric", 3, 2, 6, 2, -2))
sketch5.addConstraint(Sketcher.Constraint("Equal", 15, 0))
sketch5.addConstraint(Sketcher.Constraint("DistanceX", 1, 1, 1, 2, 3.0))
sketch5.addConstraint(Sketcher.Constraint("DistanceX", -1, 1, 0, 2, 70.0))
sketch5.addConstraint(Sketcher.Constraint("DistanceY", 4, 2, 8, 2, 58.0))
pocket2 = doc.addObject("PartDesign::Pocket", "Pocket001")
body.addObject(pocket2)
pocket2.Profile = sketch5
pocket2.Length = 52

# Sketch on XY plane
sketch6 = doc.addObject("Sketcher::SketchObject", "Sketch005")
body.addObject(sketch6)
sketch6.AttachmentSupport = (doc.XY_Plane, [""])
sketch6.MapMode = "FlatFace"
sketch6.addGeometry(Part.LineSegment(Vector(-91, 65, 0), Vector(-91, 12, 0)), False)
sketch6.addGeometry(Part.LineSegment(Vector(-91, 12, 0), Vector(91, 12, 0)), False)
sketch6.addGeometry(Part.LineSegment(Vector(91, 12, 0), Vector(91, 65, 0)), False)
sketch6.addGeometry(Part.LineSegment(Vector(91, 65, 0), Vector(-91, 65, 0)), False)
sketch6.addConstraint(Sketcher.Constraint("Coincident", 0, 2, 1, 1))
sketch6.addConstraint(Sketcher.Constraint("Coincident", 1, 2, 2, 1))
sketch6.addConstraint(Sketcher.Constraint("Coincident", 2, 2, 3, 1))
sketch6.addConstraint(Sketcher.Constraint("Coincident", 3, 2, 0, 1))
sketch6.addConstraint(Sketcher.Constraint("Vertical", 0))
sketch6.addConstraint(Sketcher.Constraint("Horizontal", 1))
sketch6.addConstraint(Sketcher.Constraint("Vertical", 2))
sketch6.addConstraint(Sketcher.Constraint("Horizontal", 3))
sketch6.addConstraint(Sketcher.Constraint("DistanceY", -1, 1, 0, 2, 12.0))
sketch6.addConstraint(Sketcher.Constraint("DistanceX", 1, 1, 1, 2, 182.778356))
sketch6.addConstraint(Sketcher.Constraint("DistanceY", 0, 2, 0, 1, 52.909524))
sketch6.addConstraint(Sketcher.Constraint("DistanceX", -1, 1, 1, 2, 91.472109))
pocket3 = doc.addObject("PartDesign::Pocket", "Pocket002")
body.addObject(pocket3)
pocket3.Profile = sketch6
pocket3.Type = "ThroughAll"
pocket3.Midplane = True

doc.recompute()
